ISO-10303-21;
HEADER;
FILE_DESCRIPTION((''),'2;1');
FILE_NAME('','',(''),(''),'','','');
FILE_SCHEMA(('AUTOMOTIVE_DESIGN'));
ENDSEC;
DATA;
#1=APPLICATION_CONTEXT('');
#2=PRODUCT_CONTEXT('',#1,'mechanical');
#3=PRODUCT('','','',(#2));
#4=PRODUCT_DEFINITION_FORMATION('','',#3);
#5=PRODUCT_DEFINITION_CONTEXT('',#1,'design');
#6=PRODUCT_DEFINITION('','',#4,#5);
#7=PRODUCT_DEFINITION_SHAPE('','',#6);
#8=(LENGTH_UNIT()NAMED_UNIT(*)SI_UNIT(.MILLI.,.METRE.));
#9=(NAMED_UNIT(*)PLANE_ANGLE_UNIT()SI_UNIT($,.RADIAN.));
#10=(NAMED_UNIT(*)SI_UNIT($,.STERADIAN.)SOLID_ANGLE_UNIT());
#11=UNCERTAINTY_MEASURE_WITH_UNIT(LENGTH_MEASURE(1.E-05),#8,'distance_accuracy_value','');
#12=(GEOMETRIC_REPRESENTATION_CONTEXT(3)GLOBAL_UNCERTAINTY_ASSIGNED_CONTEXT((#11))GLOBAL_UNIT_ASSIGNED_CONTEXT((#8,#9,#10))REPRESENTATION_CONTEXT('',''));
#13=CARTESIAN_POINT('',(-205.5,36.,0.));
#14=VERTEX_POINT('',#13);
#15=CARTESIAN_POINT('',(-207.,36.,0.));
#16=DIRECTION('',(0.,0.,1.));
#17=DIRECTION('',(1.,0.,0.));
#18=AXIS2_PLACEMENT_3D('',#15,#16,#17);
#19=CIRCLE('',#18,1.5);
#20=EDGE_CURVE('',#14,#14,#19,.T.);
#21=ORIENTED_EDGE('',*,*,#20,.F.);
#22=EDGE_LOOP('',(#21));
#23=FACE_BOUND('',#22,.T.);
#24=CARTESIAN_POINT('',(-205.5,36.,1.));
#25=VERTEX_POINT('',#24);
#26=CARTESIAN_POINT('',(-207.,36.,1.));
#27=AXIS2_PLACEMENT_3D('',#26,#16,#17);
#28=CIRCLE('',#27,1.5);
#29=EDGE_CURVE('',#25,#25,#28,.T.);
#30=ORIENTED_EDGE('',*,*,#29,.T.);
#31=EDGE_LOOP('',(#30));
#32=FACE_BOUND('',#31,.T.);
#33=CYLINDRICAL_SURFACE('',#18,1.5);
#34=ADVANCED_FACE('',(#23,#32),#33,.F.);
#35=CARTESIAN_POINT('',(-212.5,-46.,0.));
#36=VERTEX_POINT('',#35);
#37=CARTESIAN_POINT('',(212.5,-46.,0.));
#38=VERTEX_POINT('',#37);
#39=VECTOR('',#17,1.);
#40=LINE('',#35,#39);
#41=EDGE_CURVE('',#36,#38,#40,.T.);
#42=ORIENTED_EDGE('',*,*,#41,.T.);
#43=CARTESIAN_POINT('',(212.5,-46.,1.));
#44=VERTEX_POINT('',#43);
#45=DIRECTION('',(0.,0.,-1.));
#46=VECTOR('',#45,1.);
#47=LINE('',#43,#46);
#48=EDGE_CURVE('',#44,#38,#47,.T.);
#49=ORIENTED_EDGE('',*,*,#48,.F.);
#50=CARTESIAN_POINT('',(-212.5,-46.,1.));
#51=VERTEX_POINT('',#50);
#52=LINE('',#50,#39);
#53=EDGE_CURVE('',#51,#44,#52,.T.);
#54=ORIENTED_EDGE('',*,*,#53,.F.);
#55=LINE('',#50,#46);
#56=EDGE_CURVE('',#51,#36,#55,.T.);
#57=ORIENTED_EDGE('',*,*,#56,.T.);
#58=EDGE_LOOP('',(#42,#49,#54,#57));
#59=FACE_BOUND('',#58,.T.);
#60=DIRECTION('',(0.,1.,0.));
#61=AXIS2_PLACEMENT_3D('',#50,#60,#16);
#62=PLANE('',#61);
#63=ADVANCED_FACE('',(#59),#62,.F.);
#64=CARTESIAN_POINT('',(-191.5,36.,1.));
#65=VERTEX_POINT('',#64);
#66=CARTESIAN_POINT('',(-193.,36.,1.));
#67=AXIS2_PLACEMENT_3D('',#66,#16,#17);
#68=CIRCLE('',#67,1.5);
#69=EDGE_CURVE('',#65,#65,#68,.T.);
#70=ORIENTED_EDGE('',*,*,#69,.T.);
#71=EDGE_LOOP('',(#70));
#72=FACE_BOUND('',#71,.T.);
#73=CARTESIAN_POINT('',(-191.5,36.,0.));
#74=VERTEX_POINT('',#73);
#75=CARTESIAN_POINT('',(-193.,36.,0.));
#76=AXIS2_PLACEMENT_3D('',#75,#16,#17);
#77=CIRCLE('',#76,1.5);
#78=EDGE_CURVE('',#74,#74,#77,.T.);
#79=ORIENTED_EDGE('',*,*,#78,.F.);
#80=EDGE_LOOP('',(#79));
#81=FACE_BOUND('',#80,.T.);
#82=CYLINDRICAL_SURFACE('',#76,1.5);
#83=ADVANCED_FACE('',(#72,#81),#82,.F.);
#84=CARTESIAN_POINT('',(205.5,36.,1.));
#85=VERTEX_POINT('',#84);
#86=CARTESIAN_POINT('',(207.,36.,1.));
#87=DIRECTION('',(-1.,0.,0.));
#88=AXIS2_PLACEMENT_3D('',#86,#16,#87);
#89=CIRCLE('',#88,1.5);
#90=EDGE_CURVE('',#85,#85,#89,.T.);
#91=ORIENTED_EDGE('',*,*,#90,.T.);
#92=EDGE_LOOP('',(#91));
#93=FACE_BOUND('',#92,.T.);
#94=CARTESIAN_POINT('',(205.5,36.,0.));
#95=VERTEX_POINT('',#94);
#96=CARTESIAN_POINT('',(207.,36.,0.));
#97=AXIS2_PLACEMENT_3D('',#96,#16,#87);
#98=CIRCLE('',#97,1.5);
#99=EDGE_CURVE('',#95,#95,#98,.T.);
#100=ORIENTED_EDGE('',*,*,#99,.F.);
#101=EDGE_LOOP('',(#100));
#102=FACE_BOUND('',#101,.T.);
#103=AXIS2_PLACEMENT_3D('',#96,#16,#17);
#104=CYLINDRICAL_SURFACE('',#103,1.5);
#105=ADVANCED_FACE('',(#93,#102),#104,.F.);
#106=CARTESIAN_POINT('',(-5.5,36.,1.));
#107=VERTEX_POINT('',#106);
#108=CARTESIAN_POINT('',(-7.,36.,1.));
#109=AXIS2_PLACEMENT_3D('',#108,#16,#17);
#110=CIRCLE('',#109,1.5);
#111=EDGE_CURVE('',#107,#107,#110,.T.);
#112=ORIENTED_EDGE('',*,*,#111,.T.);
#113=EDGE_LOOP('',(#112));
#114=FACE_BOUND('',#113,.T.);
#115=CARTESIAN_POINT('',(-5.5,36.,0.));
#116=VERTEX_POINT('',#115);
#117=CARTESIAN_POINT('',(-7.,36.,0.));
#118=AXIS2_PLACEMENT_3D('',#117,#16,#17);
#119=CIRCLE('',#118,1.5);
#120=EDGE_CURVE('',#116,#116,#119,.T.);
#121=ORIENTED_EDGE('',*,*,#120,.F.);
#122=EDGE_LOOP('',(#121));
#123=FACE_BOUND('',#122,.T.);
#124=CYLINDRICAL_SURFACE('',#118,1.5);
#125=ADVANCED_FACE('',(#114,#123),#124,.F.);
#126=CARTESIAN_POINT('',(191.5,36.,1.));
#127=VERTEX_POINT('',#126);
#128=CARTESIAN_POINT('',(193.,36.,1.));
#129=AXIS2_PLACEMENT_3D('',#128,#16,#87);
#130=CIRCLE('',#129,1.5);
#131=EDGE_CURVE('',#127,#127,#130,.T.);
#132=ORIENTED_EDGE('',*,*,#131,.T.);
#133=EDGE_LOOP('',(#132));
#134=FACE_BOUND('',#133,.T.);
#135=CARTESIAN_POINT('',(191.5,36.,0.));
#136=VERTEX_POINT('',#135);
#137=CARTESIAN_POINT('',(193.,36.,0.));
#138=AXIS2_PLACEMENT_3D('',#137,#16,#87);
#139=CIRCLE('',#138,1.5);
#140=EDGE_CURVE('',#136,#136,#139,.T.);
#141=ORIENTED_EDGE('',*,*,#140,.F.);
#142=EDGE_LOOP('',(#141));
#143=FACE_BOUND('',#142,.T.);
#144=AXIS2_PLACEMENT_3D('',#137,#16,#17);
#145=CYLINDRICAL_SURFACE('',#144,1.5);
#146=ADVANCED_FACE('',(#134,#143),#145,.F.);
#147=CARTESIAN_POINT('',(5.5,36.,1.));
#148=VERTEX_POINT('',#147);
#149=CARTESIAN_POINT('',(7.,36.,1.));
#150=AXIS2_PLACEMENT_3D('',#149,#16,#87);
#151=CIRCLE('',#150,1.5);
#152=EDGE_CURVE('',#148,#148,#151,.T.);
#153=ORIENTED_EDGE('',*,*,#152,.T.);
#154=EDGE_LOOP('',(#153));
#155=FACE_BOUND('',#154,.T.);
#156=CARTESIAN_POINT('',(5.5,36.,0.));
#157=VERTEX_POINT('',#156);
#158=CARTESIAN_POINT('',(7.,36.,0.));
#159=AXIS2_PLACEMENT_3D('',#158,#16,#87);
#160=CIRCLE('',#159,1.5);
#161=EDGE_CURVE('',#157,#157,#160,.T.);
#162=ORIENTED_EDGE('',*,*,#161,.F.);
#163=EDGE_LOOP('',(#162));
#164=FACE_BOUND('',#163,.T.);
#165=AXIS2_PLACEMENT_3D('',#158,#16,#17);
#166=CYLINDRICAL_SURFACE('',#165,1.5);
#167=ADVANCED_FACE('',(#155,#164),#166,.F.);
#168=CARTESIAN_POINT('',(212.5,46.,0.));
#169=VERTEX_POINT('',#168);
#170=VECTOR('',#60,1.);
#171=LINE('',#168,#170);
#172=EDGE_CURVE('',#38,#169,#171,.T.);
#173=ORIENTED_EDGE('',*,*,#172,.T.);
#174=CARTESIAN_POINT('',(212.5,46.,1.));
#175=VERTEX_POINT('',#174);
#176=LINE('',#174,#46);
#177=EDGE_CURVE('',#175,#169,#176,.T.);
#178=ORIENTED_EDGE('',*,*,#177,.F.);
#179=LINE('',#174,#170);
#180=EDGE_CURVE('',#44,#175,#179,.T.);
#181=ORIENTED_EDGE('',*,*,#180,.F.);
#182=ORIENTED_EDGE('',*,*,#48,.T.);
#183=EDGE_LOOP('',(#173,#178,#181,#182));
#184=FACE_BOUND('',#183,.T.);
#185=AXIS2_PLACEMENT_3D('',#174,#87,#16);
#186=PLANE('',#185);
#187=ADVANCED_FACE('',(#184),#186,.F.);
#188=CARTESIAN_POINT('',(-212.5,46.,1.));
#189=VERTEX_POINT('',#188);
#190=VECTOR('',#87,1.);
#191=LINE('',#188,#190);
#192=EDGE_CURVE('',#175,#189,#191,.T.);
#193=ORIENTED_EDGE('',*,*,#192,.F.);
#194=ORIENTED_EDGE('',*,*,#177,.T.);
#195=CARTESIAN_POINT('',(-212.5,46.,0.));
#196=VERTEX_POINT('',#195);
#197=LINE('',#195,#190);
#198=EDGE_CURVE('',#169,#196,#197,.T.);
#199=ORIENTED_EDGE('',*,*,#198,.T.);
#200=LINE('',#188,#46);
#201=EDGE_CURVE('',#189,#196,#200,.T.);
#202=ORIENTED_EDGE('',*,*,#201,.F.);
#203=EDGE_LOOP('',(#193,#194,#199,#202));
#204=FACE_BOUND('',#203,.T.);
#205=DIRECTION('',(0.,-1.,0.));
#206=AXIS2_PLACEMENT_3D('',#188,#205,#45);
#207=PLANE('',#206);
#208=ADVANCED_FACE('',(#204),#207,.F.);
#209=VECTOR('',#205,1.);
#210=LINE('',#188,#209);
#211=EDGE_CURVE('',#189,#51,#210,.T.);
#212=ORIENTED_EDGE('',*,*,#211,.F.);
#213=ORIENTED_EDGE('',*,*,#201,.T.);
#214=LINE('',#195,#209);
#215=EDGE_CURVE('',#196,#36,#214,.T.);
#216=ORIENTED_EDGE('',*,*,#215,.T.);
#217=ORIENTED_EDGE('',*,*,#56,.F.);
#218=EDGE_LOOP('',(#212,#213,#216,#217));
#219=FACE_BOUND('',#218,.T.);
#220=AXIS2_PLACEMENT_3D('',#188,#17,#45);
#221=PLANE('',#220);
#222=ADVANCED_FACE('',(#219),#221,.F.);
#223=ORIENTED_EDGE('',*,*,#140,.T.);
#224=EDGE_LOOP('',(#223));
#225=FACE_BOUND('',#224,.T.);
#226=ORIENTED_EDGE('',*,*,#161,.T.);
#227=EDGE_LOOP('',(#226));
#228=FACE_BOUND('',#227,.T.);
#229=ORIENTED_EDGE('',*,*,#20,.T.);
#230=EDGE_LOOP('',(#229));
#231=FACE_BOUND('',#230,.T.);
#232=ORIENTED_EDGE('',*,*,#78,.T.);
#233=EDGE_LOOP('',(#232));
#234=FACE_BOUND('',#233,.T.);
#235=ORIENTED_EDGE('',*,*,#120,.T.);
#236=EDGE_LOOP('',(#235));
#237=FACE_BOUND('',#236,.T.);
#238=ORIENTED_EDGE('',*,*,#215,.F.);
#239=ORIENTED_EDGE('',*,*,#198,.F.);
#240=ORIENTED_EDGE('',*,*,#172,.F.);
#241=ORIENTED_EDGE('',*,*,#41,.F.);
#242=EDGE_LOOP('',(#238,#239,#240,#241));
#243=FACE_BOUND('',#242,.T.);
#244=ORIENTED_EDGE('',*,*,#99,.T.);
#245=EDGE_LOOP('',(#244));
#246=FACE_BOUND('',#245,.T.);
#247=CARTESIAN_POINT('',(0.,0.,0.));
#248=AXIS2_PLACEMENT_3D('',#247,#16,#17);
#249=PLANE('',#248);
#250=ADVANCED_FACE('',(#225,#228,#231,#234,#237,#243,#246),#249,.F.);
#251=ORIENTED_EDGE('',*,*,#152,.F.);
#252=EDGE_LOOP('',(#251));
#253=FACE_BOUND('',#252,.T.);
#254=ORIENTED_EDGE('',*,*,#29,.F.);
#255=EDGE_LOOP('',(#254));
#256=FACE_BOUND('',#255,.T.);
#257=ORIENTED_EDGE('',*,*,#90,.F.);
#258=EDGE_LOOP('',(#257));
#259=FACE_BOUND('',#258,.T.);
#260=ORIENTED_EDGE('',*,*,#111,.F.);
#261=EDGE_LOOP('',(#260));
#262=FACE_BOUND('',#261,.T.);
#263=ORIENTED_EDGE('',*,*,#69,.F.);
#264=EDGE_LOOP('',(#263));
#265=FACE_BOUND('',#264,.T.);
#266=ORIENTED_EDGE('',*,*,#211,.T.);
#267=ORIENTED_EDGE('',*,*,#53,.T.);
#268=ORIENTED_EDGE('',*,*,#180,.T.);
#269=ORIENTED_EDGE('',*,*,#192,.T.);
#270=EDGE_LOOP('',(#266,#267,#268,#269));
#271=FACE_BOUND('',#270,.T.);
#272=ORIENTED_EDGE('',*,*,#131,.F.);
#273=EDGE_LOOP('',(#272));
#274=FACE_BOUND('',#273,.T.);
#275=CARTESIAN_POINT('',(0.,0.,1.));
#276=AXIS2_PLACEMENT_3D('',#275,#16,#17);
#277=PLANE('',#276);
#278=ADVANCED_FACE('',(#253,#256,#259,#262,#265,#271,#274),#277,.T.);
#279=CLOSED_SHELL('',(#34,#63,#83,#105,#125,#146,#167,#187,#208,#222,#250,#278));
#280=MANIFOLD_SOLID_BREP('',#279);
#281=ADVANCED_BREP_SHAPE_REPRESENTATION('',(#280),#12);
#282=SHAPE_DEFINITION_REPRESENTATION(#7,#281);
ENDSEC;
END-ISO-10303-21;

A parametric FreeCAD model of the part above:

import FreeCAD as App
import Part
import Sketcher
Q = App.Units.Quantity


def add_polygon(sketch, points):
    """Adds a closed chain of lines whose ends are joined by coincident constraints."""
    first, n = sketch.GeometryCount, len(points)
    for a, b in zip(points, points[1:] + points[:1]):
        sketch.addGeometry(Part.LineSegment(App.Vector(*a, 0), App.Vector(*b, 0)), False)
    for i in range(n):
        sketch.addConstraint(Sketcher.Constraint("Coincident", first + i, 2, first + (i + 1) % n, 1))

doc = App.newDocument("Part")
body = doc.addObject("PartDesign::Body", "Body")

# Sketch on XY plane
sketch1 = body.newObject("Sketcher::SketchObject", "Sketch")
sketch1.AttachmentSupport = (doc.getObject("XY_Plane"), [""])
sketch1.MapMode = "FlatFace"
add_polygon(sketch1, [(-212, 46), (-212, -46), (212, -46), (212, 46)])  # lines 0-3
sketch1.addConstraint([
    Sketcher.Constraint("Vertical", 0),
    Sketcher.Constraint("Horizontal", 1),
    Sketcher.Constraint("Vertical", 2),
    Sketcher.Constraint("Horizontal", 3),
    Sketcher.Constraint("Symmetric", 0, 2, 2, 2, -1, 1),
    Sketcher.Constraint("DistanceX", 1, 1, 1, 2, Q("425 mm")),
    Sketcher.Constraint("DistanceY", 0, 2, 0, 1, Q("92 mm")),
])
pad1 = body.newObject("PartDesign::Pad", "Pad")
pad1.Profile = sketch1
pad1.Length = 1

# Sketch on XY plane
sketch2 = body.newObject("Sketcher::SketchObject", "Sketch001")
sketch2.AttachmentSupport = (doc.getObject("XY_Plane"), [""])
sketch2.MapMode = "FlatFace"
sketch2.AttachmentOffset = App.Placement(App.Vector(0, 0, 1), App.Rotation())
sketch2.addGeometry([
    Part.Circle(App.Vector(-7, 36, 0), App.Vector(0, 0, 1), 1.5),  # 0
    Part.Circle(App.Vector(-207, 36, 0), App.Vector(0, 0, 1), 1.5),  # 1
    Part.Circle(App.Vector(-193, 36, 0), App.Vector(0, 0, 1), 1.5),  # 2
    Part.Circle(App.Vector(193, 36, 0), App.Vector(0, 0, 1), 1.5),  # 3
    Part.Circle(App.Vector(207, 36, 0), App.Vector(0, 0, 1), 1.5),  # 4
    Part.Circle(App.Vector(7, 36, 0), App.Vector(0, 0, 1), 1.5),  # 5
], False)
sketch2.addConstraint([
    Sketcher.Constraint("Equal", 0, 1),
    Sketcher.Constraint("Equal", 1, 2),
    Sketcher.Constraint("Equal", 2, 3),
    Sketcher.Constraint("Equal", 3, 4),
    Sketcher.Constraint("Equal", 4, 5),
    Sketcher.Constraint("Symmetric", 2, 3, 3, 3, -2),
    Sketcher.Constraint("Symmetric", 1, 3, 4, 3, -2),
    Sketcher.Constraint("Symmetric", 0, 3, 5, 3, -2),
    Sketcher.Constraint("Horizontal", 0, 3, 1, 3),
    Sketcher.Constraint("Horizontal", 1, 3, 2, 3),
    Sketcher.Constraint("Diameter", 0, Q("3 mm")),
    Sketcher.Constraint("DistanceX", 0, 3, -1, 1, Q("7 mm")),
    Sketcher.Constraint("DistanceY", -1, 1, 0, 3, Q("36 mm")),
    Sketcher.Constraint("DistanceX", 1, 3, -1, 1, Q("207 mm")),
    Sketcher.Constraint("DistanceX", 2, 3, -1, 1, Q("193 mm")),
])
pocket1 = body.newObject("PartDesign::Pocket", "Pocket")
pocket1.Profile = sketch2
pocket1.Type = "ThroughAll"

doc.recompute()
